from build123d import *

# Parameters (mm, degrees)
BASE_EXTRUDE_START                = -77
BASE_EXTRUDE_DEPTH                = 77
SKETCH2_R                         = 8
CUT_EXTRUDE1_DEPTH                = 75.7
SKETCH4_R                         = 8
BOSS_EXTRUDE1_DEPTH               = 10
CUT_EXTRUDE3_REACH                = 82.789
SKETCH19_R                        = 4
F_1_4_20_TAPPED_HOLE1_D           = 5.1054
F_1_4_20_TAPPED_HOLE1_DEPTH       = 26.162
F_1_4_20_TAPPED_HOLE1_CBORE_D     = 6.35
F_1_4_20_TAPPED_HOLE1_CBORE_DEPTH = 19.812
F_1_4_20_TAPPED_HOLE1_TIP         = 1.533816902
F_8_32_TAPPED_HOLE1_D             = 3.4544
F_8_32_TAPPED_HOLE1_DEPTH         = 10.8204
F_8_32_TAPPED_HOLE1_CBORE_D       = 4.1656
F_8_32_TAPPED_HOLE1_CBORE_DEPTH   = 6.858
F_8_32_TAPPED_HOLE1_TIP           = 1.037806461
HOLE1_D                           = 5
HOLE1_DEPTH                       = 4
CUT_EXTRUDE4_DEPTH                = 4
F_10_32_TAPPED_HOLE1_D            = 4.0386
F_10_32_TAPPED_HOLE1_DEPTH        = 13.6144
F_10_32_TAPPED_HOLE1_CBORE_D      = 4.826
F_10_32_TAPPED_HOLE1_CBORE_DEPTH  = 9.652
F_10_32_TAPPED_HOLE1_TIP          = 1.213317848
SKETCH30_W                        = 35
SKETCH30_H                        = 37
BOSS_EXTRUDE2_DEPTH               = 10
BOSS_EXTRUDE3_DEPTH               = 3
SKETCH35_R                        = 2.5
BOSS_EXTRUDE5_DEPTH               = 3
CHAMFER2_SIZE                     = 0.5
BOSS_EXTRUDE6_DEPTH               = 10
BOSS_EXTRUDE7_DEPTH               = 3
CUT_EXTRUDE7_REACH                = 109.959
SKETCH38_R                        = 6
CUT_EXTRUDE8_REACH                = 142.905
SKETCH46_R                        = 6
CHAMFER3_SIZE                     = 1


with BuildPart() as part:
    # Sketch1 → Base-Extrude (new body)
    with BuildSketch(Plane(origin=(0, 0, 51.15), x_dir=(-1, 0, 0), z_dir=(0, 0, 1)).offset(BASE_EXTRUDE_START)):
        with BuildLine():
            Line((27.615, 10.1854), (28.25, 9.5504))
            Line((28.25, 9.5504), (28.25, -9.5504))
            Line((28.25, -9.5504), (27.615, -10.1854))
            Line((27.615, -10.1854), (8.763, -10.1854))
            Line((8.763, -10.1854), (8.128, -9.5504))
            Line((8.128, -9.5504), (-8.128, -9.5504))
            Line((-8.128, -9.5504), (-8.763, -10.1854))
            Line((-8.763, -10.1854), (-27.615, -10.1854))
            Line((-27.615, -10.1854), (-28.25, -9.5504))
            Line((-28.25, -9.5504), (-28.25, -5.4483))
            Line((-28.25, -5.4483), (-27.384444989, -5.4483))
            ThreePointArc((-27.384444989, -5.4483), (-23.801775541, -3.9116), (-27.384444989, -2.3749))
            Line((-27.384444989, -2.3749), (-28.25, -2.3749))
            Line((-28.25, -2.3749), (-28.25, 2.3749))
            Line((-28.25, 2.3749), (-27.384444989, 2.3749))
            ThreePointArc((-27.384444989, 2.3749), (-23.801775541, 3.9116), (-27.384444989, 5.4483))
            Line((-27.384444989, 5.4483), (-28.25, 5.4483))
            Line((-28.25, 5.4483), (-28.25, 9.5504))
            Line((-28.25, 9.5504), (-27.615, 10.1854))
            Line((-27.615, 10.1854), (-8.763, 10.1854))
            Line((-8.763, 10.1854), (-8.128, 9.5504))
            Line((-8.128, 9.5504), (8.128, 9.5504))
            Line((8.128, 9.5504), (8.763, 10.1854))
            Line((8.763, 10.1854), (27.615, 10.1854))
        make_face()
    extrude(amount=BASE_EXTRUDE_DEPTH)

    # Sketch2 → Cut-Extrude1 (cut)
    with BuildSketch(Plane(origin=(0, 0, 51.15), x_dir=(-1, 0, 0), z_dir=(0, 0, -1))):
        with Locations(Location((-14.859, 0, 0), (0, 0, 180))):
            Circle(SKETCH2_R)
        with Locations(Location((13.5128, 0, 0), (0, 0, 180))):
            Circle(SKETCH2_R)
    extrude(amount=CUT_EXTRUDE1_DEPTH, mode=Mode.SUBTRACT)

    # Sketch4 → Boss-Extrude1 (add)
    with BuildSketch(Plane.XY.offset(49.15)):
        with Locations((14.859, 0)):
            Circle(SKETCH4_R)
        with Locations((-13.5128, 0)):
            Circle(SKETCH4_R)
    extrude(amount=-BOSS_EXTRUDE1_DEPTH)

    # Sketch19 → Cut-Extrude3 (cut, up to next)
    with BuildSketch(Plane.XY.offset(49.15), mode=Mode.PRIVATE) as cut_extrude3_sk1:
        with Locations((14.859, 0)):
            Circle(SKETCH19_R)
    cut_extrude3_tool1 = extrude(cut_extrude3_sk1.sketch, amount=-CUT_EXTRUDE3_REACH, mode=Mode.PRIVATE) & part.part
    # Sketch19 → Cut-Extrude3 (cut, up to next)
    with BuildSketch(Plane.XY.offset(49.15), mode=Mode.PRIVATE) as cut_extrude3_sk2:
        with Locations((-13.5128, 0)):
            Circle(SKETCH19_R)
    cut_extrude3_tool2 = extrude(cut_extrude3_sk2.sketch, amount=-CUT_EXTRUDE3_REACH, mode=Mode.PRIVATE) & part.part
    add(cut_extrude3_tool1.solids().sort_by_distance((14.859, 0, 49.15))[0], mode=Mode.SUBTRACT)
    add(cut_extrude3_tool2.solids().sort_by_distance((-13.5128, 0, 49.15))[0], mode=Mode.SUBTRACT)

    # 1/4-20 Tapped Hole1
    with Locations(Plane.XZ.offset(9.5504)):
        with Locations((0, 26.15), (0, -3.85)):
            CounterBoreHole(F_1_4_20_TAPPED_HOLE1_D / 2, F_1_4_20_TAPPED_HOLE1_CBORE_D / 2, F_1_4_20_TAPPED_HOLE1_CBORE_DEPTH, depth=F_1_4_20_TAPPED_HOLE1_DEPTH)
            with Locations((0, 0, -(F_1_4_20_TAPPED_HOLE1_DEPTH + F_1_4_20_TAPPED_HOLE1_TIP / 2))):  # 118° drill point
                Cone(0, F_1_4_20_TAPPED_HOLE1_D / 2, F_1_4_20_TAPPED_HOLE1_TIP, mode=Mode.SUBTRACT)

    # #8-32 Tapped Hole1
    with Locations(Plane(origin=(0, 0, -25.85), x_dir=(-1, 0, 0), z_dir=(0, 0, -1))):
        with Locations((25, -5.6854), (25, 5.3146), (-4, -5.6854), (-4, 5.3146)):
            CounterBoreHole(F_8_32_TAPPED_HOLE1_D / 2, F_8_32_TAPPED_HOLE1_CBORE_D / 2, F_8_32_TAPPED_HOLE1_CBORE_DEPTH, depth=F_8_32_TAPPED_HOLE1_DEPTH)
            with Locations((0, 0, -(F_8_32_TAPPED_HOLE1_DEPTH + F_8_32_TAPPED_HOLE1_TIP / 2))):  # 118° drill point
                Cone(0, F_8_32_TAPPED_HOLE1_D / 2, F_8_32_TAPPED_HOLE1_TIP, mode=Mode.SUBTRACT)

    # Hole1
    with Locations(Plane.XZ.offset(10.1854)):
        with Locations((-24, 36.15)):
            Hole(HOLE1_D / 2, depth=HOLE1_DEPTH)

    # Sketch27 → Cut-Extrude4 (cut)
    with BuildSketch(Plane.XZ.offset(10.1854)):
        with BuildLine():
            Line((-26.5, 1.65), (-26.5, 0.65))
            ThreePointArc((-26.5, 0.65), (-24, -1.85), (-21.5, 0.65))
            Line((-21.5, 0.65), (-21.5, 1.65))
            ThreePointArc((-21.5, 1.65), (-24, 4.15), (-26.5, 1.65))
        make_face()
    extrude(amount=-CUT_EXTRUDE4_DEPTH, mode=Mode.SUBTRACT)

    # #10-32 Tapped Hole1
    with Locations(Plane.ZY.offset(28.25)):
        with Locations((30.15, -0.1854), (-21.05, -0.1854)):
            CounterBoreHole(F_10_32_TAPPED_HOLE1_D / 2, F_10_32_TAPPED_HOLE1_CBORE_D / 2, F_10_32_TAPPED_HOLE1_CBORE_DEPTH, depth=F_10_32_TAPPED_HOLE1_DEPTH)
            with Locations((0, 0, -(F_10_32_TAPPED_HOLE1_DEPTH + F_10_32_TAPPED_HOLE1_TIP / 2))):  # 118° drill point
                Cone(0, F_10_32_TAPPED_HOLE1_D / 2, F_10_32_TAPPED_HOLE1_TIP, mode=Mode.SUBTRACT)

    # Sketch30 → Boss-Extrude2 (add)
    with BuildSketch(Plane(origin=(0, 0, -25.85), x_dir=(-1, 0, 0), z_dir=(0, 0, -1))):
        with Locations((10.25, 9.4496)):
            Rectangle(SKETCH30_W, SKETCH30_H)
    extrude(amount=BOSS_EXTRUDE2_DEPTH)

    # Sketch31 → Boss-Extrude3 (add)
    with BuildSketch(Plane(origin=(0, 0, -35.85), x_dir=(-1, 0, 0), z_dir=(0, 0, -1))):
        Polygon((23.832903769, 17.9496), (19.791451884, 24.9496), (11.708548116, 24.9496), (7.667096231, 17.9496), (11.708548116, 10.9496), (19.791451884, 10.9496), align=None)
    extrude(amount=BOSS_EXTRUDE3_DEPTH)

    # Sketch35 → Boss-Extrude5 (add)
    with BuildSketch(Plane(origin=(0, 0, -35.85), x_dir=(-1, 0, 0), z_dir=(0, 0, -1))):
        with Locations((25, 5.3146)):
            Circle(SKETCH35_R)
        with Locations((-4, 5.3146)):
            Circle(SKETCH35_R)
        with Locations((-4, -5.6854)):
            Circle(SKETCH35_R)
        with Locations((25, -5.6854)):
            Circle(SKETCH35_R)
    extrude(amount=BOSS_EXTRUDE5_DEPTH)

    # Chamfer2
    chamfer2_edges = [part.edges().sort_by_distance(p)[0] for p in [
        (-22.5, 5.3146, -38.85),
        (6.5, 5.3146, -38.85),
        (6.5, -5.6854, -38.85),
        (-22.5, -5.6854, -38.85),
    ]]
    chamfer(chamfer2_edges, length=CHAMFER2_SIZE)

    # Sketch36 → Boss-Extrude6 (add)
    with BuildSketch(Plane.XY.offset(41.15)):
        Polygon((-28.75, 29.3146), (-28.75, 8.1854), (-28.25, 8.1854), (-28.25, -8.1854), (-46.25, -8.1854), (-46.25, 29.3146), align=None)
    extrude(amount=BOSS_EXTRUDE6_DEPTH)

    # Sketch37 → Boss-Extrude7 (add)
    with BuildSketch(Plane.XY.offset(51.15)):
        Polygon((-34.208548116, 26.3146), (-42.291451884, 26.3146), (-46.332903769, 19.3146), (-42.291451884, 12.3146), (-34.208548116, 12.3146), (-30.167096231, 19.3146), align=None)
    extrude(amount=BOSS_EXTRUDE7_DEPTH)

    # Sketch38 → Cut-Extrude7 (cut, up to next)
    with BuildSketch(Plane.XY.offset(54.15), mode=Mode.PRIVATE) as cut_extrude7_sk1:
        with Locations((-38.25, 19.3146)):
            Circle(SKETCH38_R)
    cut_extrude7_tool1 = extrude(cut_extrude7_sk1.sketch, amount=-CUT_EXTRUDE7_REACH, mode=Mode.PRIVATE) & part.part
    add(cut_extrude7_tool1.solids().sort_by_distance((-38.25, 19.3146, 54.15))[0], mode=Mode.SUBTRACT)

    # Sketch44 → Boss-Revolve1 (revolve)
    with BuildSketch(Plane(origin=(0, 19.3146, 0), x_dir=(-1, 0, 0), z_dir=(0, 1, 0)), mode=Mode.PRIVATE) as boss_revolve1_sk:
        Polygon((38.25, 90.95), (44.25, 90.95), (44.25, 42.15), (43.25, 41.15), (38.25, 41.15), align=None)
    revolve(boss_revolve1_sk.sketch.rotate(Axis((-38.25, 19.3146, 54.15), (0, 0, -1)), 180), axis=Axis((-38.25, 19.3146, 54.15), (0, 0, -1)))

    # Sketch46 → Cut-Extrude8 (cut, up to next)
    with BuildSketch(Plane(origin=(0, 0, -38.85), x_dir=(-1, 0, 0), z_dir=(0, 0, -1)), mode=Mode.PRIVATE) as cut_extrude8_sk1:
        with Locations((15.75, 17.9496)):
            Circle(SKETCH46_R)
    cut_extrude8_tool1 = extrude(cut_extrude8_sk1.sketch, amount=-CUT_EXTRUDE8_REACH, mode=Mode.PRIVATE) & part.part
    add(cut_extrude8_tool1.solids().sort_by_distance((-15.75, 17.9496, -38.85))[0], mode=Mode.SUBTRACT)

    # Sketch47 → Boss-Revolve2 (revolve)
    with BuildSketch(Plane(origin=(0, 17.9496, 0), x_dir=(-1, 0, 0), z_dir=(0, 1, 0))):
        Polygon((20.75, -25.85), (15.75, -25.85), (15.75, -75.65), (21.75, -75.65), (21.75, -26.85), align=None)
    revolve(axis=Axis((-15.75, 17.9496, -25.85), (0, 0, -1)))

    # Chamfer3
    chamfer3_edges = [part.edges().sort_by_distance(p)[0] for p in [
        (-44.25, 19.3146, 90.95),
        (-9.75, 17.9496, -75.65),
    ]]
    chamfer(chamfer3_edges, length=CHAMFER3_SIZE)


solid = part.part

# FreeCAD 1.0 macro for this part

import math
import FreeCAD as App
import Part
import Sketcher
from FreeCAD import Vector
Q = App.Units.Quantity


def edges_at(feature, points):
    """Names of the edges that pass closest to the given points."""
    edges = feature.Shape.Edges
    near = lambda p: min(range(len(edges)), key=lambda i: edges[i].distToShape(Part.Vertex(*p))[0])
    return sorted({f"Edge{near(p) + 1}" for p in points})


def add_polygon(sketch, points):
    """Adds a closed chain of lines whose ends are joined by coincident constraints."""
    first, n = sketch.GeometryCount, len(points)
    for a, b in zip(points, points[1:] + points[:1]):
        sketch.addGeometry(Part.LineSegment(App.Vector(*a, 0), App.Vector(*b, 0)), False)
    for i in range(n):
        sketch.addConstraint(Sketcher.Constraint("Coincident", first + i, 2, first + (i + 1) % n, 1))

doc = App.newDocument("Part")
params = doc.addObject("Spreadsheet::Sheet", "Params")
for row, (alias, value) in enumerate([
    ("pad1_length", "77 mm"),
    ("sketch2_diameter", "16 mm"),
    ("pocket1_length", "75.7 mm"),
    ("sketch3_diameter", "16 mm"),
    ("pad2_length", "10 mm"),
    ("sketch4_diameter", "8 mm"),
    ("sketch5_diameter", "8 mm"),
    ("hole_diameter", "5.1054 mm"),
    ("hole_depth", "26.162 mm"),
    ("hole_cbore_diameter", "6.35 mm"),
    ("hole_cbore_depth", "19.812 mm"),
    ("hole2_diameter", "3.4544 mm"),
    ("hole2_depth", "10.8204 mm"),
    ("hole2_cbore_diameter", "4.1656 mm"),
    ("hole2_cbore_depth", "6.858 mm"),
    ("sketch8_diameter", "5 mm"),
    ("hole3_diameter", "5 mm"),
    ("hole3_depth", "4 mm"),
    ("sketch9_radius", "2.5 mm"),
    ("sketch9_height", "1 mm"),
    ("pocket4_length", "4 mm"),
    ("hole4_diameter", "4.0386 mm"),
    ("hole4_depth", "13.6144 mm"),
    ("hole4_cbore_diameter", "4.826 mm"),
    ("hole4_cbore_depth", "9.652 mm"),
    ("sketch11_width", "35 mm"),
    ("sketch11_height", "37 mm"),
    ("pad3_length", "10 mm"),
    ("pad4_length", "3 mm"),
    ("sketch13_diameter", "5 mm"),
    ("pad5_length", "3 mm"),
    ("chamfer_size", "0.5 mm"),
    ("sketch14_width", "18 mm"),
    ("sketch14_width2", "17.5 mm"),
    ("sketch14_height", "37.5 mm"),
    ("pad6_length", "10 mm"),
    ("pad7_length", "3 mm"),
    ("sketch16_diameter", "12 mm"),
    ("sketch17_width", "6 mm"),
    ("sketch17_width2", "5 mm"),
    ("sketch17_height", "49.8 mm"),
    ("revolution_angle", "360 deg"),
    ("sketch18_diameter", "12 mm"),
    ("sketch19_width", "5 mm"),
    ("sketch19_width2", "6 mm"),
    ("sketch19_height", "49.8 mm"),
    ("revolution2_angle", "360 deg"),
    ("chamfer2_size", "1 mm"),
], start=1):
    params.set(f"A{row}", alias)
    params.set(f"B{row}", "=" + value)
    params.setAlias(f"B{row}", alias)

body = doc.addObject("PartDesign::Body", "Body")

# Sketch on XY plane
sketch1 = body.newObject("Sketcher::SketchObject", "Sketch")
sketch1.AttachmentSupport = (doc.getObject("XY_Plane"), [""])
sketch1.MapMode = "FlatFace"
sketch1.AttachmentOffset = App.Placement(Vector(0, 0, -25.85), App.Rotation())
sketch1.addGeometry([
    Part.LineSegment(Vector(-28.25, -9.5504, 0), Vector(-27.615, -10.1854, 0)),  # 0
    Part.LineSegment(Vector(-27.615, -10.1854, 0), Vector(-8.763, -10.1854, 0)),  # 1
    Part.LineSegment(Vector(-8.763, -10.1854, 0), Vector(-8.128, -9.5504, 0)),  # 2
    Part.LineSegment(Vector(-8.128, -9.5504, 0), Vector(8.128, -9.5504, 0)),  # 3
    Part.LineSegment(Vector(8.128, -9.5504, 0), Vector(8.763, -10.1854, 0)),  # 4
    Part.LineSegment(Vector(8.763, -10.1854, 0), Vector(27.615, -10.1854, 0)),  # 5
    Part.LineSegment(Vector(27.615, -10.1854, 0), Vector(28.25, -9.5504, 0)),  # 6
    Part.LineSegment(Vector(28.25, -9.5504, 0), Vector(28.25, -5.4483, 0)),  # 7
    Part.LineSegment(Vector(28.25, -5.4483, 0), Vector(27.384445, -5.4483, 0)),  # 8
    Part.ArcOfCircle(Part.Circle(Vector(25.922676, -3.9116, 0), Vector(0, 0, 1), 2.1209), math.radians(46.431501), math.radians(313.568499)),  # 9
    Part.LineSegment(Vector(27.384445, -2.3749, 0), Vector(28.25, -2.3749, 0)),  # 10
    Part.LineSegment(Vector(28.25, -2.3749, 0), Vector(28.25, 2.3749, 0)),  # 11
    Part.LineSegment(Vector(28.25, 2.3749, 0), Vector(27.384445, 2.3749, 0)),  # 12
    Part.ArcOfCircle(Part.Circle(Vector(25.922676, 3.9116, 0), Vector(0, 0, 1), 2.1209), math.radians(46.431501), math.radians(313.568499)),  # 13
    Part.LineSegment(Vector(27.384445, 5.4483, 0), Vector(28.25, 5.4483, 0)),  # 14
    Part.LineSegment(Vector(28.25, 5.4483, 0), Vector(28.25, 9.5504, 0)),  # 15
    Part.LineSegment(Vector(28.25, 9.5504, 0), Vector(27.615, 10.1854, 0)),  # 16
    Part.LineSegment(Vector(27.615, 10.1854, 0), Vector(8.763, 10.1854, 0)),  # 17
    Part.LineSegment(Vector(8.763, 10.1854, 0), Vector(8.128, 9.5504, 0)),  # 18
    Part.LineSegment(Vector(8.128, 9.5504, 0), Vector(-8.128, 9.5504, 0)),  # 19
    Part.LineSegment(Vector(-8.128, 9.5504, 0), Vector(-8.763, 10.1854, 0)),  # 20
    Part.LineSegment(Vector(-8.763, 10.1854, 0), Vector(-27.615, 10.1854, 0)),  # 21
    Part.LineSegment(Vector(-27.615, 10.1854, 0), Vector(-28.25, 9.5504, 0)),  # 22
    Part.LineSegment(Vector(-28.25, 9.5504, 0), Vector(-28.25, -9.5504, 0)),  # 23
], False)
sketch1.addConstraint([
    Sketcher.Constraint("Coincident", 0, 2, 1, 1),
    Sketcher.Constraint("Coincident", 1, 2, 2, 1),
    Sketcher.Constraint("Coincident", 2, 2, 3, 1),
    Sketcher.Constraint("Coincident", 3, 2, 4, 1),
    Sketcher.Constraint("Coincident", 4, 2, 5, 1),
    Sketcher.Constraint("Coincident", 5, 2, 6, 1),
    Sketcher.Constraint("Coincident", 6, 2, 7, 1),
    Sketcher.Constraint("Coincident", 7, 2, 8, 1),
    Sketcher.Constraint("Coincident", 8, 2, 9, 2),
    Sketcher.Constraint("Coincident", 9, 1, 10, 1),
    Sketcher.Constraint("Coincident", 10, 2, 11, 1),
    Sketcher.Constraint("Coincident", 11, 2, 12, 1),
    Sketcher.Constraint("Coincident", 12, 2, 13, 2),
    Sketcher.Constraint("Coincident", 13, 1, 14, 1),
    Sketcher.Constraint("Coincident", 14, 2, 15, 1),
    Sketcher.Constraint("Coincident", 15, 2, 16, 1),
    Sketcher.Constraint("Coincident", 16, 2, 17, 1),
    Sketcher.Constraint("Coincident", 17, 2, 18, 1),
    Sketcher.Constraint("Coincident", 18, 2, 19, 1),
    Sketcher.Constraint("Coincident", 19, 2, 20, 1),
    Sketcher.Constraint("Coincident", 20, 2, 21, 1),
    Sketcher.Constraint("Coincident", 21, 2, 22, 1),
    Sketcher.Constraint("Coincident", 22, 2, 23, 1),
    Sketcher.Constraint("Coincident", 23, 2, 0, 1),
    Sketcher.Constraint("Horizontal", 1),
    Sketcher.Constraint("Horizontal", 3),
    Sketcher.Constraint("Horizontal", 5),
    Sketcher.Constraint("Vertical", 7),
    Sketcher.Constraint("Horizontal", 8),
    Sketcher.Constraint("Horizontal", 10),
    Sketcher.Constraint("Vertical", 11),
    Sketcher.Constraint("Horizontal", 12),
    Sketcher.Constraint("Horizontal", 14),
    Sketcher.Constraint("Vertical", 15),
    Sketcher.Constraint("Horizontal", 17),
    Sketcher.Constraint("Horizontal", 19),
    Sketcher.Constraint("Horizontal", 21),
    Sketcher.Constraint("Vertical", 23),
    Sketcher.Constraint("Equal", 9, 13),
    Sketcher.Constraint("Symmetric", 0, 2, 16, 2, -1, 1),
    Sketcher.Constraint("Symmetric", 2, 2, 18, 2, -1, 1),
    Sketcher.Constraint("Symmetric", 4, 2, 20, 2, -1, 1),
    Sketcher.Constraint("Symmetric", 6, 2, 22, 2, -1, 1),
    Sketcher.Constraint("Symmetric", 15, 2, 23, 2, -1, 1),
    Sketcher.Constraint("Symmetric", 1, 2, 4, 2, -2),
    Sketcher.Constraint("Symmetric", 9, 3, 13, 3, -1),
    Sketcher.Constraint("Perpendicular", 0, 2),
    Sketcher.Constraint("Perpendicular", 2, 4),
    Sketcher.Constraint("Perpendicular", 4, 6),
    Sketcher.Constraint("Perpendicular", 16, 18),
    Sketcher.Constraint("Perpendicular", 18, 20),
    Sketcher.Constraint("Perpendicular", 20, 22),
    Sketcher.Constraint("Horizontal", 3, 2, 6, 2),
    Sketcher.Constraint("Horizontal", 15, 2, 18, 2),
    Sketcher.Constraint("Vertical", 8, 2, 9, 1),
    Sketcher.Constraint("Vertical", 7, 2, 10, 2),
    Sketcher.Constraint("Vertical", 9, 1, 12, 2),
    Sketcher.Constraint("Vertical", 12, 2, 13, 1),
    Sketcher.Constraint("Vertical", 5, 2, 16, 2),
    Sketcher.Constraint("Radius", 9, 2.1209),
    Sketcher.Constraint("DistanceX", 1, 1, 1, 2, 18.852),
    Sketcher.Constraint("DistanceX", 3, 1, 3, 2, 16.256),
    Sketcher.Constraint("DistanceX", -1, 1, 6, 2, 28.25),
    Sketcher.Constraint("DistanceY", 7, 1, 7, 2, 4.1021),
    Sketcher.Constraint("DistanceY", 11, 1, 11, 2, 4.7498),
    Sketcher.Constraint("DistanceY", 23, 2, 23, 1, 19.1008),
    Sketcher.Constraint("DistanceX", 8, 2, 8, 1, 0.865555),
])
pad1 = body.newObject("PartDesign::Pad", "Pad")
pad1.Profile = sketch1
pad1.setExpression("Length", "Params.pad1_length")

# Sketch on XY plane
sketch2 = body.newObject("Sketcher::SketchObject", "Sketch001")
sketch2.AttachmentSupport = (doc.getObject("XY_Plane"), [""])
sketch2.MapMode = "FlatFace"
sketch2.AttachmentOffset = App.Placement(Vector(0, 0, 51.15), App.Rotation())
sketch2.addGeometry([
    Part.Circle(Vector(14.859, 0, 0), Vector(0, 0, 1), 8),
    Part.Circle(Vector(-13.5128, 0, 0), Vector(0, 0, 1), 8),
], False)
sketch2.addConstraint([
    Sketcher.Constraint("Equal", 0, 1),
    Sketcher.Constraint("PointOnObject", 0, 3, -1),
    Sketcher.Constraint("PointOnObject", 1, 3, -1),
    Sketcher.Constraint("Diameter", 0, 16.0),
    Sketcher.Constraint("DistanceX", -1, 1, 0, 3, 14.859),
    Sketcher.Constraint("DistanceX", 1, 3, -1, 1, 13.5128),
])
sketch2.setExpression("Constraints[3]", "Params.sketch2_diameter")
pocket1 = body.newObject("PartDesign::Pocket", "Pocket")
pocket1.Profile = sketch2
pocket1.setExpression("Length", "Params.pocket1_length")

# Sketch on XY plane
sketch3 = body.newObject("Sketcher::SketchObject", "Sketch002")
sketch3.AttachmentSupport = (doc.getObject("XY_Plane"), [""])
sketch3.MapMode = "FlatFace"
sketch3.AttachmentOffset = App.Placement(Vector(0, 0, 49.15), App.Rotation())
sketch3.addGeometry([
    Part.Circle(Vector(14.859, 0, 0), Vector(0, 0, 1), 8),
    Part.Circle(Vector(-13.5128, 0, 0), Vector(0, 0, 1), 8),
], False)
sketch3.addConstraint([
    Sketcher.Constraint("Equal", 0, 1),
    Sketcher.Constraint("PointOnObject", 0, 3, -1),
    Sketcher.Constraint("PointOnObject", 1, 3, -1),
    Sketcher.Constraint("Diameter", 0, 16.0),
    Sketcher.Constraint("DistanceX", -1, 1, 0, 3, 14.859),
    Sketcher.Constraint("DistanceX", 1, 3, -1, 1, 13.5128),
])
sketch3.setExpression("Constraints[3]", "Params.sketch3_diameter")
pad2 = body.newObject("PartDesign::Pad", "Pad001")
pad2.Profile = sketch3
pad2.setExpression("Length", "Params.pad2_length")
pad2.Reversed = True

# Sketch on XY plane
sketch4 = body.newObject("Sketcher::SketchObject", "Sketch003")
sketch4.AttachmentSupport = (doc.getObject("XY_Plane"), [""])
sketch4.MapMode = "FlatFace"
sketch4.AttachmentOffset = App.Placement(Vector(0, 0, 49.15), App.Rotation())
sketch4.addGeometry(Part.Circle(Vector(14.859, 0, 0), Vector(0, 0, 1), 4), False)
sketch4.addConstraint([
    Sketcher.Constraint("PointOnObject", 0, 3, -1),
    Sketcher.Constraint("Diameter", 0, 8.0),
    Sketcher.Constraint("DistanceX", -1, 1, 0, 3, 14.859),
])
sketch4.setExpression("Constraints[1]", "Params.sketch4_diameter")
pocket2 = body.newObject("PartDesign::Pocket", "Pocket001")
pocket2.Profile = sketch4
pocket2.Type = "UpToFirst"

# Sketch on XY plane
sketch5 = body.newObject("Sketcher::SketchObject", "Sketch004")
sketch5.AttachmentSupport = (doc.getObject("XY_Plane"), [""])
sketch5.MapMode = "FlatFace"
sketch5.AttachmentOffset = App.Placement(Vector(0, 0, 49.15), App.Rotation())
sketch5.addGeometry(Part.Circle(Vector(-13.5128, 0, 0), Vector(0, 0, 1), 4), False)
sketch5.addConstraint([
    Sketcher.Constraint("PointOnObject", 0, 3, -1),
    Sketcher.Constraint("Diameter", 0, 8.0),
    Sketcher.Constraint("DistanceX", 0, 3, -1, 1, 13.5128),
])
sketch5.setExpression("Constraints[1]", "Params.sketch5_diameter")
pocket3 = body.newObject("PartDesign::Pocket", "Pocket002")
pocket3.Profile = sketch5
pocket3.Type = "UpToFirst"

# Sketch on XZ plane
sketch6 = body.newObject("Sketcher::SketchObject", "Sketch005")
sketch6.AttachmentSupport = (doc.getObject("XZ_Plane"), [""])
sketch6.MapMode = "FlatFace"
sketch6.AttachmentOffset = App.Placement(Vector(0, 0, 9.5504), App.Rotation())
sketch6.addGeometry([
    Part.Circle(Vector(0, 26.15, 0), Vector(0, 0, 1), 2.5527),
    Part.Circle(Vector(0, -3.85, 0), Vector(0, 0, 1), 2.5527),
], False)
sketch6.addConstraint([
    Sketcher.Constraint("Equal", 0, 1),
    Sketcher.Constraint("PointOnObject", 0, 3, -2),
    Sketcher.Constraint("PointOnObject", 1, 3, -2),
    Sketcher.Constraint("DistanceY", 1, 3, 0, 3, 30.0),
    Sketcher.Constraint("Diameter", 0, 5.1054),
    Sketcher.Constraint("DistanceY", -1, 1, 0, 3, 26.15),
])
doc.recompute()
hole = body.newObject("PartDesign::Hole", "Hole")
hole.Profile = sketch6
hole.ThreadType = "None"
hole.setExpression("Diameter", "Params.hole_diameter")
hole.DepthType = "Dimension"
hole.setExpression("Depth", "Params.hole_depth")
hole.DrillPoint = "Angled"
hole.DrillPointAngle = 118
hole.HoleCutType = "Counterbore"
hole.setExpression("HoleCutDiameter", "Params.hole_cbore_diameter")
hole.setExpression("HoleCutDepth", "Params.hole_cbore_depth")

# Sketch on XY plane
sketch7 = body.newObject("Sketcher::SketchObject", "Sketch006")
sketch7.AttachmentSupport = (doc.getObject("XY_Plane"), [""])
sketch7.MapMode = "FlatFace"
sketch7.AttachmentOffset = App.Placement(Vector(0, 0, -25.85), App.Rotation())
sketch7.addGeometry([
    Part.Circle(Vector(-25, -5.6854, 0), Vector(0, 0, 1), 1.7272),
    Part.Circle(Vector(-25, 5.3146, 0), Vector(0, 0, 1), 1.7272),
    Part.Circle(Vector(4, -5.6854, 0), Vector(0, 0, 1), 1.7272),
    Part.Circle(Vector(4, 5.3146, 0), Vector(0, 0, 1), 1.7272),
], False)
sketch7.addConstraint([
    Sketcher.Constraint("Equal", 0, 1),
    Sketcher.Constraint("Equal", 1, 2),
    Sketcher.Constraint("Equal", 2, 3),
    Sketcher.Constraint("Horizontal", 0, 3, 2, 3),
    Sketcher.Constraint("Horizontal", 1, 3, 3, 3),
    Sketcher.Constraint("Vertical", 0, 3, 1, 3),
    Sketcher.Constraint("Vertical", 2, 3, 3, 3),
    Sketcher.Constraint("DistanceX", 0, 3, -1, 1, 25.0),
    Sketcher.Constraint("DistanceX", -1, 1, 2, 3, 4.0),
    Sketcher.Constraint("DistanceY", 0, 3, 1, 3, 11.0),
    Sketcher.Constraint("Diameter", 0, 3.4544),
    Sketcher.Constraint("DistanceY", 0, 3, -1, 1, 5.6854),
])
doc.recompute()
hole2 = body.newObject("PartDesign::Hole", "Hole001")
hole2.Profile = sketch7
hole2.ThreadType = "None"
hole2.setExpression("Diameter", "Params.hole2_diameter")
hole2.DepthType = "Dimension"
hole2.setExpression("Depth", "Params.hole2_depth")
hole2.DrillPoint = "Angled"
hole2.DrillPointAngle = 118
hole2.HoleCutType = "Counterbore"
hole2.setExpression("HoleCutDiameter", "Params.hole2_cbore_diameter")
hole2.setExpression("HoleCutDepth", "Params.hole2_cbore_depth")
hole2.Reversed = True

# Sketch on XZ plane
sketch8 = body.newObject("Sketcher::SketchObject", "Sketch007")
sketch8.AttachmentSupport = (doc.getObject("XZ_Plane"), [""])
sketch8.MapMode = "FlatFace"
sketch8.AttachmentOffset = App.Placement(Vector(0, 0, 10.1854), App.Rotation())
sketch8.addGeometry(Part.Circle(Vector(-24, 36.15, 0), Vector(0, 0, 1), 2.5), False)
sketch8.addConstraint([
    Sketcher.Constraint("Diameter", 0, 5.0),
    Sketcher.Constraint("DistanceX", 0, 3, -1, 1, 24.0),
    Sketcher.Constraint("DistanceY", -1, 1, 0, 3, 36.15),
])
sketch8.setExpression("Constraints[0]", "Params.sketch8_diameter")
doc.recompute()
hole3 = body.newObject("PartDesign::Hole", "Hole002")
hole3.Profile = sketch8
hole3.ThreadType = "None"
hole3.setExpression("Diameter", "Params.hole3_diameter")
hole3.DepthType = "Dimension"
hole3.setExpression("Depth", "Params.hole3_depth")
hole3.DrillPoint = "Flat"

# Sketch on XZ plane
sketch9 = body.newObject("Sketcher::SketchObject", "Sketch008")
sketch9.AttachmentSupport = (doc.getObject("XZ_Plane"), [""])
sketch9.MapMode = "FlatFace"
sketch9.AttachmentOffset = App.Placement(Vector(0, 0, 10.1854), App.Rotation())
sketch9.addGeometry([
    Part.LineSegment(Vector(-26.5, 1.65, 0), Vector(-26.5, 0.65, 0)),
    Part.ArcOfCircle(Part.Circle(Vector(-24, 0.65, 0), Vector(0, 0, 1), 2.5), math.radians(180), math.radians(360)),
    Part.LineSegment(Vector(-21.5, 0.65, 0), Vector(-21.5, 1.65, 0)),
    Part.ArcOfCircle(Part.Circle(Vector(-24, 1.65, 0), Vector(0, 0, 1), 2.5), math.radians(0), math.radians(180)),
], False)
sketch9.addConstraint([
    Sketcher.Constraint("Tangent", 0, 2, 1, 1),
    Sketcher.Constraint("Tangent", 1, 2, 2, 1),
    Sketcher.Constraint("Tangent", 2, 2, 3, 1),
    Sketcher.Constraint("Tangent", 3, 2, 0, 1),
    Sketcher.Constraint("Vertical", 0),
    Sketcher.Constraint("Vertical", 2),
    Sketcher.Constraint("Radius", 1, 2.5),
    Sketcher.Constraint("DistanceY", 0, 2, 0, 1, 1.0),
    Sketcher.Constraint("DistanceX", 1, 3, -1, 1, 24.0),
    Sketcher.Constraint("DistanceY", -1, 1, 1, 3, 0.65),
])
sketch9.setExpression("Constraints[6]", "Params.sketch9_radius")
sketch9.setExpression("Constraints[7]", "Params.sketch9_height")
pocket4 = body.newObject("PartDesign::Pocket", "Pocket003")
pocket4.Profile = sketch9
pocket4.setExpression("Length", "Params.pocket4_length")

# Sketch on YZ plane
sketch10 = body.newObject("Sketcher::SketchObject", "Sketch009")
sketch10.AttachmentSupport = (doc.getObject("YZ_Plane"), [""])
sketch10.MapMode = "FlatFace"
sketch10.AttachmentOffset = App.Placement(Vector(0, 0, -28.25), App.Rotation())
sketch10.addGeometry([
    Part.Circle(Vector(-0.1854, 30.15, 0), Vector(0, 0, 1), 2.0193),
    Part.Circle(Vector(-0.1854, -21.05, 0), Vector(0, 0, 1), 2.0193),
], False)
sketch10.addConstraint([
    Sketcher.Constraint("Equal", 0, 1),
    Sketcher.Constraint("Vertical", 0, 3, 1, 3),
    Sketcher.Constraint("Diameter", 0, 4.0386),
    Sketcher.Constraint("DistanceY", 1, 3, 0, 3, 51.2),
    Sketcher.Constraint("DistanceY", -1, 1, 0, 3, 30.15),
    Sketcher.Constraint("DistanceX", 0, 3, -1, 1, 0.1854),
])
doc.recompute()
hole4 = body.newObject("PartDesign::Hole", "Hole003")
hole4.Profile = sketch10
hole4.ThreadType = "None"
hole4.setExpression("Diameter", "Params.hole4_diameter")
hole4.DepthType = "Dimension"
hole4.setExpression("Depth", "Params.hole4_depth")
hole4.DrillPoint = "Angled"
hole4.DrillPointAngle = 118
hole4.HoleCutType = "Counterbore"
hole4.setExpression("HoleCutDiameter", "Params.hole4_cbore_diameter")
hole4.setExpression("HoleCutDepth", "Params.hole4_cbore_depth")
hole4.Reversed = True

# Sketch on XY plane
sketch11 = body.newObject("Sketcher::SketchObject", "Sketch010")
sketch11.AttachmentSupport = (doc.getObject("XY_Plane"), [""])
sketch11.MapMode = "FlatFace"
sketch11.AttachmentOffset = App.Placement(Vector(0, 0, -25.85), App.Rotation())
add_polygon(sketch11, [(7.25, 27.9496), (7.25, -9.0504), (-27.75, -9.0504), (-27.75, 27.9496)])  # lines 0-3
sketch11.addConstraint([
    Sketcher.Constraint("Vertical", 0),
    Sketcher.Constraint("Horizontal", 1),
    Sketcher.Constraint("Vertical", 2),
    Sketcher.Constraint("Horizontal", 3),
    Sketcher.Constraint("DistanceX", 1, 2, 1, 1, 35.0),
    Sketcher.Constraint("DistanceY", 0, 2, 0, 1, 37.0),
    Sketcher.Constraint("DistanceX", -1, 1, 0, 2, 7.25),
    Sketcher.Constraint("DistanceY", 0, 2, -1, 1, 9.0504),
])
sketch11.setExpression("Constraints[8]", "Params.sketch11_width")
sketch11.setExpression("Constraints[9]", "Params.sketch11_height")
pad3 = body.newObject("PartDesign::Pad", "Pad002")
pad3.Profile = sketch11
pad3.setExpression("Length", "Params.pad3_length")
pad3.Reversed = True

# Sketch on XY plane
sketch12 = body.newObject("Sketcher::SketchObject", "Sketch011")
sketch12.AttachmentSupport = (doc.getObject("XY_Plane"), [""])
sketch12.MapMode = "FlatFace"
sketch12.AttachmentOffset = App.Placement(Vector(0, 0, -35.85), App.Rotation())
add_polygon(sketch12, [(-23.832904, 17.9496), (-19.791452, 24.9496), (-11.708548, 24.9496), (-7.667096, 17.9496), (-11.708548, 10.9496), (-19.791452, 10.9496)])  # lines 0-5
sketch12.addConstraint([
    Sketcher.Constraint("Horizontal", 1),
    Sketcher.Constraint("Horizontal", 4),
    Sketcher.Constraint("Parallel", 0, 3),
    Sketcher.Constraint("Parallel", 2, 5),
    Sketcher.Constraint("Horizontal", 2, 2, 5, 2),
    Sketcher.Constraint("Vertical", 1, 2, 3, 2),
    Sketcher.Constraint("Vertical", 0, 2, 4, 2),
    Sketcher.Constraint("Angle", 0, Q("60 deg")),
    Sketcher.Constraint("DistanceY", 2, 2, 1, 2, 7.0),
    Sketcher.Constraint("DistanceY", -1, 1, 0, 2, 24.9496),
    Sketcher.Constraint("DistanceX", 1, 1, 1, 2, 8.082904),
    Sketcher.Constraint("DistanceX", 0, 2, -1, 1, 19.791452),
])
pad4 = body.newObject("PartDesign::Pad", "Pad003")
pad4.Profile = sketch12
pad4.setExpression("Length", "Params.pad4_length")
pad4.Reversed = True

# Sketch on XY plane
sketch13 = body.newObject("Sketcher::SketchObject", "Sketch012")
sketch13.AttachmentSupport = (doc.getObject("XY_Plane"), [""])
sketch13.MapMode = "FlatFace"
sketch13.AttachmentOffset = App.Placement(Vector(0, 0, -35.85), App.Rotation())
sketch13.addGeometry([
    Part.Circle(Vector(-25, 5.3146, 0), Vector(0, 0, 1), 2.5),
    Part.Circle(Vector(4, 5.3146, 0), Vector(0, 0, 1), 2.5),
    Part.Circle(Vector(4, -5.6854, 0), Vector(0, 0, 1), 2.5),
    Part.Circle(Vector(-25, -5.6854, 0), Vector(0, 0, 1), 2.5),
], False)
sketch13.addConstraint([
    Sketcher.Constraint("Equal", 0, 1),
    Sketcher.Constraint("Equal", 1, 2),
    Sketcher.Constraint("Equal", 2, 3),
    Sketcher.Constraint("Horizontal", 0, 3, 1, 3),
    Sketcher.Constraint("Horizontal", 2, 3, 3, 3),
    Sketcher.Constraint("Vertical", 1, 3, 2, 3),
    Sketcher.Constraint("Vertical", 0, 3, 3, 3),
    Sketcher.Constraint("Diameter", 0, 5.0),
    Sketcher.Constraint("DistanceX", 0, 3, -1, 1, 25.0),
    Sketcher.Constraint("DistanceX", -1, 1, 1, 3, 4.0),
    Sketcher.Constraint("DistanceY", 2, 3, 1, 3, 11.0),
    Sketcher.Constraint("DistanceY", -1, 1, 0, 3, 5.3146),
])
sketch13.setExpression("Constraints[7]", "Params.sketch13_diameter")
pad5 = body.newObject("PartDesign::Pad", "Pad004")
pad5.Profile = sketch13
pad5.setExpression("Length", "Params.pad5_length")
pad5.Reversed = True
doc.recompute()

chamfer = body.newObject("PartDesign::Chamfer", "Chamfer")
chamfer.Base = (pad5, edges_at(pad5, [
    (-22.5, 5.315, -38.85),
    (6.5, 5.315, -38.85),
    (6.5, -5.685, -38.85),
    (-22.5, -5.685, -38.85),
]))
chamfer.setExpression("Size", "Params.chamfer_size")

# Sketch on XY plane
sketch14 = body.newObject("Sketcher::SketchObject", "Sketch013")
sketch14.AttachmentSupport = (doc.getObject("XY_Plane"), [""])
sketch14.MapMode = "FlatFace"
sketch14.AttachmentOffset = App.Placement(Vector(0, 0, 41.15), App.Rotation())
add_polygon(sketch14, [(-28.75, 8.1854), (-28.75, 29.3146), (-46.25, 29.3146), (-46.25, -8.1854), (-28.25, -8.1854), (-28.25, 8.1854)])  # lines 0-5
sketch14.addConstraint([
    Sketcher.Constraint("Vertical", 0),
    Sketcher.Constraint("Horizontal", 1),
    Sketcher.Constraint("Vertical", 2),
    Sketcher.Constraint("Horizontal", 3),
    Sketcher.Constraint("Vertical", 4),
    Sketcher.Constraint("Horizontal", 5),
    Sketcher.Constraint("DistanceX", 3, 1, 3, 2, 18.0),
    Sketcher.Constraint("DistanceX", 1, 2, 1, 1, 17.5),
    Sketcher.Constraint("DistanceY", 2, 2, 2, 1, 37.5),
    Sketcher.Constraint("DistanceX", 0, 2, -1, 1, 28.75),
    Sketcher.Constraint("DistanceY", 0, 1, 0, 2, 21.1292),
    Sketcher.Constraint("DistanceY", -1, 1, 0, 2, 29.3146),
])
sketch14.setExpression("Constraints[12]", "Params.sketch14_width")
sketch14.setExpression("Constraints[13]", "Params.sketch14_width2")
sketch14.setExpression("Constraints[14]", "Params.sketch14_height")
pad6 = body.newObject("PartDesign::Pad", "Pad005")
pad6.Profile = sketch14
pad6.setExpression("Length", "Params.pad6_length")

# Sketch on XY plane
sketch15 = body.newObject("Sketcher::SketchObject", "Sketch014")
sketch15.AttachmentSupport = (doc.getObject("XY_Plane"), [""])
sketch15.MapMode = "FlatFace"
sketch15.AttachmentOffset = App.Placement(Vector(0, 0, 51.15), App.Rotation())
add_polygon(sketch15, [(-34.208548, 26.3146), (-42.291452, 26.3146), (-46.332904, 19.3146), (-42.291452, 12.3146), (-34.208548, 12.3146), (-30.167096, 19.3146)])  # lines 0-5
sketch15.addConstraint([
    Sketcher.Constraint("Horizontal", 0),
    Sketcher.Constraint("Horizontal", 3),
    Sketcher.Constraint("Parallel", 1, 4),
    Sketcher.Constraint("Parallel", 2, 5),
    Sketcher.Constraint("Horizontal", 1, 2, 4, 2),
    Sketcher.Constraint("Vertical", 0, 2, 2, 2),
    Sketcher.Constraint("Vertical", 3, 2, 5, 2),
    Sketcher.Constraint("Angle", 1, Q("-120 deg")),
    Sketcher.Constraint("DistanceY", 1, 2, 0, 2, 7.0),
    Sketcher.Constraint("DistanceY", -1, 1, 0, 2, 26.3146),
    Sketcher.Constraint("DistanceX", 0, 2, 0, 1, 8.082904),
    Sketcher.Constraint("DistanceX", 0, 2, -1, 1, 42.291452),
])
pad7 = body.newObject("PartDesign::Pad", "Pad006")
pad7.Profile = sketch15
pad7.setExpression("Length", "Params.pad7_length")

# Sketch on XY plane
sketch16 = body.newObject("Sketcher::SketchObject", "Sketch015")
sketch16.AttachmentSupport = (doc.getObject("XY_Plane"), [""])
sketch16.MapMode = "FlatFace"
sketch16.AttachmentOffset = App.Placement(Vector(0, 0, 54.15), App.Rotation())
sketch16.addGeometry(Part.Circle(Vector(-38.25, 19.3146, 0), Vector(0, 0, 1), 6), False)
sketch16.addConstraint([
    Sketcher.Constraint("Diameter", 0, 12.0),
    Sketcher.Constraint("DistanceX", 0, 3, -1, 1, 38.25),
    Sketcher.Constraint("DistanceY", -1, 1, 0, 3, 19.3146),
])
sketch16.setExpression("Constraints[0]", "Params.sketch16_diameter")
pocket5 = body.newObject("PartDesign::Pocket", "Pocket004")
pocket5.Profile = sketch16
pocket5.Type = "UpToFirst"

# Sketch on XZ plane
sketch17 = body.newObject("Sketcher::SketchObject", "Sketch016")
sketch17.AttachmentSupport = (doc.getObject("XZ_Plane"), [""])
sketch17.MapMode = "FlatFace"
sketch17.AttachmentOffset = App.Placement(Vector(0, 0, -19.3146), App.Rotation())
add_polygon(sketch17, [(-44.25, 90.95), (-38.25, 90.95), (-38.25, 41.15), (-43.25, 41.15), (-44.25, 42.15)])  # lines 0-4
sketch17.addGeometry(Part.LineSegment(Vector(-38.25, 90.95, 0), Vector(-38.25, 41.15, 0)), True)  # axis
sketch17.addConstraint([
    Sketcher.Constraint("Horizontal", 0),
    Sketcher.Constraint("Vertical", 1),
    Sketcher.Constraint("Horizontal", 2),
    Sketcher.Constraint("Vertical", 4),
    Sketcher.Constraint("Vertical", 5),
    Sketcher.Constraint("Coincident", 5, 1, 0, 2),
    Sketcher.Constraint("Horizontal", 2, 2, 5, 2),
    Sketcher.Constraint("DistanceX", 0, 1, 0, 2, 6.0),
    Sketcher.Constraint("DistanceX", 2, 2, 2, 1, 5.0),
    Sketcher.Constraint("Angle", 3, Q("135 deg")),
    Sketcher.Constraint("DistanceY", 1, 2, 1, 1, 49.8),
    Sketcher.Constraint("DistanceX", 0, 2, -1, 1, 38.25),
    Sketcher.Constraint("DistanceY", -1, 1, 0, 2, 90.95),
])
sketch17.setExpression("Constraints[12]", "Params.sketch17_width")
sketch17.setExpression("Constraints[13]", "Params.sketch17_width2")
sketch17.setExpression("Constraints[15]", "Params.sketch17_height")
revolution = body.newObject("PartDesign::Revolution", "Revolution")
revolution.Profile = sketch17
revolution.ReferenceAxis = (sketch17, ["Axis0"])
revolution.setExpression("Angle", "Params.revolution_angle")

# Sketch on XY plane
sketch18 = body.newObject("Sketcher::SketchObject", "Sketch017")
sketch18.AttachmentSupport = (doc.getObject("XY_Plane"), [""])
sketch18.MapMode = "FlatFace"
sketch18.AttachmentOffset = App.Placement(Vector(0, 0, -38.85), App.Rotation())
sketch18.addGeometry(Part.Circle(Vector(-15.75, 17.9496, 0), Vector(0, 0, 1), 6), False)
sketch18.addConstraint([
    Sketcher.Constraint("Diameter", 0, 12.0),
    Sketcher.Constraint("DistanceX", 0, 3, -1, 1, 15.75),
    Sketcher.Constraint("DistanceY", -1, 1, 0, 3, 17.9496),
])
sketch18.setExpression("Constraints[0]", "Params.sketch18_diameter")
pocket6 = body.newObject("PartDesign::Pocket", "Pocket005")
pocket6.Profile = sketch18
pocket6.Type = "UpToFirst"
pocket6.Reversed = True

# Sketch on XZ plane
sketch19 = body.newObject("Sketcher::SketchObject", "Sketch018")
sketch19.AttachmentSupport = (doc.getObject("XZ_Plane"), [""])
sketch19.MapMode = "FlatFace"
sketch19.AttachmentOffset = App.Placement(Vector(0, 0, -17.9496), App.Rotation())
add_polygon(sketch19, [(-20.75, -25.85), (-15.75, -25.85), (-15.75, -75.65), (-21.75, -75.65), (-21.75, -26.85)])  # lines 0-4
sketch19.addGeometry(Part.LineSegment(Vector(-15.75, -25.85, 0), Vector(-15.75, -75.65, 0)), True)  # axis
sketch19.addConstraint([
    Sketcher.Constraint("Horizontal", 0),
    Sketcher.Constraint("Vertical", 1),
    Sketcher.Constraint("Horizontal", 2),
    Sketcher.Constraint("Vertical", 3),
    Sketcher.Constraint("Vertical", 5),
    Sketcher.Constraint("Coincident", 5, 1, 0, 2),
    Sketcher.Constraint("Horizontal", 2, 2, 5, 2),
    Sketcher.Constraint("DistanceX", 0, 1, 0, 2, 5.0),
    Sketcher.Constraint("DistanceX", 2, 2, 2, 1, 6.0),
    Sketcher.Constraint("Angle", 4, Q("45 deg")),
    Sketcher.Constraint("DistanceY", 1, 2, 1, 1, 49.8),
    Sketcher.Constraint("DistanceX", 0, 2, -1, 1, 15.75),
    Sketcher.Constraint("DistanceY", 0, 2, -1, 1, 25.85),
])
sketch19.setExpression("Constraints[12]", "Params.sketch19_width")
sketch19.setExpression("Constraints[13]", "Params.sketch19_width2")
sketch19.setExpression("Constraints[15]", "Params.sketch19_height")
revolution2 = body.newObject("PartDesign::Revolution", "Revolution001")
revolution2.Profile = sketch19
revolution2.ReferenceAxis = (sketch19, ["Axis0"])
revolution2.setExpression("Angle", "Params.revolution2_angle")
doc.recompute()

chamfer2 = body.newObject("PartDesign::Chamfer", "Chamfer001")
chamfer2.Base = (revolution2, edges_at(revolution2, [(-44.25, 19.315, 90.95), (-9.75, 17.95, -75.65)]))
chamfer2.setExpression("Size", "Params.chamfer2_size")

doc.recompute()
